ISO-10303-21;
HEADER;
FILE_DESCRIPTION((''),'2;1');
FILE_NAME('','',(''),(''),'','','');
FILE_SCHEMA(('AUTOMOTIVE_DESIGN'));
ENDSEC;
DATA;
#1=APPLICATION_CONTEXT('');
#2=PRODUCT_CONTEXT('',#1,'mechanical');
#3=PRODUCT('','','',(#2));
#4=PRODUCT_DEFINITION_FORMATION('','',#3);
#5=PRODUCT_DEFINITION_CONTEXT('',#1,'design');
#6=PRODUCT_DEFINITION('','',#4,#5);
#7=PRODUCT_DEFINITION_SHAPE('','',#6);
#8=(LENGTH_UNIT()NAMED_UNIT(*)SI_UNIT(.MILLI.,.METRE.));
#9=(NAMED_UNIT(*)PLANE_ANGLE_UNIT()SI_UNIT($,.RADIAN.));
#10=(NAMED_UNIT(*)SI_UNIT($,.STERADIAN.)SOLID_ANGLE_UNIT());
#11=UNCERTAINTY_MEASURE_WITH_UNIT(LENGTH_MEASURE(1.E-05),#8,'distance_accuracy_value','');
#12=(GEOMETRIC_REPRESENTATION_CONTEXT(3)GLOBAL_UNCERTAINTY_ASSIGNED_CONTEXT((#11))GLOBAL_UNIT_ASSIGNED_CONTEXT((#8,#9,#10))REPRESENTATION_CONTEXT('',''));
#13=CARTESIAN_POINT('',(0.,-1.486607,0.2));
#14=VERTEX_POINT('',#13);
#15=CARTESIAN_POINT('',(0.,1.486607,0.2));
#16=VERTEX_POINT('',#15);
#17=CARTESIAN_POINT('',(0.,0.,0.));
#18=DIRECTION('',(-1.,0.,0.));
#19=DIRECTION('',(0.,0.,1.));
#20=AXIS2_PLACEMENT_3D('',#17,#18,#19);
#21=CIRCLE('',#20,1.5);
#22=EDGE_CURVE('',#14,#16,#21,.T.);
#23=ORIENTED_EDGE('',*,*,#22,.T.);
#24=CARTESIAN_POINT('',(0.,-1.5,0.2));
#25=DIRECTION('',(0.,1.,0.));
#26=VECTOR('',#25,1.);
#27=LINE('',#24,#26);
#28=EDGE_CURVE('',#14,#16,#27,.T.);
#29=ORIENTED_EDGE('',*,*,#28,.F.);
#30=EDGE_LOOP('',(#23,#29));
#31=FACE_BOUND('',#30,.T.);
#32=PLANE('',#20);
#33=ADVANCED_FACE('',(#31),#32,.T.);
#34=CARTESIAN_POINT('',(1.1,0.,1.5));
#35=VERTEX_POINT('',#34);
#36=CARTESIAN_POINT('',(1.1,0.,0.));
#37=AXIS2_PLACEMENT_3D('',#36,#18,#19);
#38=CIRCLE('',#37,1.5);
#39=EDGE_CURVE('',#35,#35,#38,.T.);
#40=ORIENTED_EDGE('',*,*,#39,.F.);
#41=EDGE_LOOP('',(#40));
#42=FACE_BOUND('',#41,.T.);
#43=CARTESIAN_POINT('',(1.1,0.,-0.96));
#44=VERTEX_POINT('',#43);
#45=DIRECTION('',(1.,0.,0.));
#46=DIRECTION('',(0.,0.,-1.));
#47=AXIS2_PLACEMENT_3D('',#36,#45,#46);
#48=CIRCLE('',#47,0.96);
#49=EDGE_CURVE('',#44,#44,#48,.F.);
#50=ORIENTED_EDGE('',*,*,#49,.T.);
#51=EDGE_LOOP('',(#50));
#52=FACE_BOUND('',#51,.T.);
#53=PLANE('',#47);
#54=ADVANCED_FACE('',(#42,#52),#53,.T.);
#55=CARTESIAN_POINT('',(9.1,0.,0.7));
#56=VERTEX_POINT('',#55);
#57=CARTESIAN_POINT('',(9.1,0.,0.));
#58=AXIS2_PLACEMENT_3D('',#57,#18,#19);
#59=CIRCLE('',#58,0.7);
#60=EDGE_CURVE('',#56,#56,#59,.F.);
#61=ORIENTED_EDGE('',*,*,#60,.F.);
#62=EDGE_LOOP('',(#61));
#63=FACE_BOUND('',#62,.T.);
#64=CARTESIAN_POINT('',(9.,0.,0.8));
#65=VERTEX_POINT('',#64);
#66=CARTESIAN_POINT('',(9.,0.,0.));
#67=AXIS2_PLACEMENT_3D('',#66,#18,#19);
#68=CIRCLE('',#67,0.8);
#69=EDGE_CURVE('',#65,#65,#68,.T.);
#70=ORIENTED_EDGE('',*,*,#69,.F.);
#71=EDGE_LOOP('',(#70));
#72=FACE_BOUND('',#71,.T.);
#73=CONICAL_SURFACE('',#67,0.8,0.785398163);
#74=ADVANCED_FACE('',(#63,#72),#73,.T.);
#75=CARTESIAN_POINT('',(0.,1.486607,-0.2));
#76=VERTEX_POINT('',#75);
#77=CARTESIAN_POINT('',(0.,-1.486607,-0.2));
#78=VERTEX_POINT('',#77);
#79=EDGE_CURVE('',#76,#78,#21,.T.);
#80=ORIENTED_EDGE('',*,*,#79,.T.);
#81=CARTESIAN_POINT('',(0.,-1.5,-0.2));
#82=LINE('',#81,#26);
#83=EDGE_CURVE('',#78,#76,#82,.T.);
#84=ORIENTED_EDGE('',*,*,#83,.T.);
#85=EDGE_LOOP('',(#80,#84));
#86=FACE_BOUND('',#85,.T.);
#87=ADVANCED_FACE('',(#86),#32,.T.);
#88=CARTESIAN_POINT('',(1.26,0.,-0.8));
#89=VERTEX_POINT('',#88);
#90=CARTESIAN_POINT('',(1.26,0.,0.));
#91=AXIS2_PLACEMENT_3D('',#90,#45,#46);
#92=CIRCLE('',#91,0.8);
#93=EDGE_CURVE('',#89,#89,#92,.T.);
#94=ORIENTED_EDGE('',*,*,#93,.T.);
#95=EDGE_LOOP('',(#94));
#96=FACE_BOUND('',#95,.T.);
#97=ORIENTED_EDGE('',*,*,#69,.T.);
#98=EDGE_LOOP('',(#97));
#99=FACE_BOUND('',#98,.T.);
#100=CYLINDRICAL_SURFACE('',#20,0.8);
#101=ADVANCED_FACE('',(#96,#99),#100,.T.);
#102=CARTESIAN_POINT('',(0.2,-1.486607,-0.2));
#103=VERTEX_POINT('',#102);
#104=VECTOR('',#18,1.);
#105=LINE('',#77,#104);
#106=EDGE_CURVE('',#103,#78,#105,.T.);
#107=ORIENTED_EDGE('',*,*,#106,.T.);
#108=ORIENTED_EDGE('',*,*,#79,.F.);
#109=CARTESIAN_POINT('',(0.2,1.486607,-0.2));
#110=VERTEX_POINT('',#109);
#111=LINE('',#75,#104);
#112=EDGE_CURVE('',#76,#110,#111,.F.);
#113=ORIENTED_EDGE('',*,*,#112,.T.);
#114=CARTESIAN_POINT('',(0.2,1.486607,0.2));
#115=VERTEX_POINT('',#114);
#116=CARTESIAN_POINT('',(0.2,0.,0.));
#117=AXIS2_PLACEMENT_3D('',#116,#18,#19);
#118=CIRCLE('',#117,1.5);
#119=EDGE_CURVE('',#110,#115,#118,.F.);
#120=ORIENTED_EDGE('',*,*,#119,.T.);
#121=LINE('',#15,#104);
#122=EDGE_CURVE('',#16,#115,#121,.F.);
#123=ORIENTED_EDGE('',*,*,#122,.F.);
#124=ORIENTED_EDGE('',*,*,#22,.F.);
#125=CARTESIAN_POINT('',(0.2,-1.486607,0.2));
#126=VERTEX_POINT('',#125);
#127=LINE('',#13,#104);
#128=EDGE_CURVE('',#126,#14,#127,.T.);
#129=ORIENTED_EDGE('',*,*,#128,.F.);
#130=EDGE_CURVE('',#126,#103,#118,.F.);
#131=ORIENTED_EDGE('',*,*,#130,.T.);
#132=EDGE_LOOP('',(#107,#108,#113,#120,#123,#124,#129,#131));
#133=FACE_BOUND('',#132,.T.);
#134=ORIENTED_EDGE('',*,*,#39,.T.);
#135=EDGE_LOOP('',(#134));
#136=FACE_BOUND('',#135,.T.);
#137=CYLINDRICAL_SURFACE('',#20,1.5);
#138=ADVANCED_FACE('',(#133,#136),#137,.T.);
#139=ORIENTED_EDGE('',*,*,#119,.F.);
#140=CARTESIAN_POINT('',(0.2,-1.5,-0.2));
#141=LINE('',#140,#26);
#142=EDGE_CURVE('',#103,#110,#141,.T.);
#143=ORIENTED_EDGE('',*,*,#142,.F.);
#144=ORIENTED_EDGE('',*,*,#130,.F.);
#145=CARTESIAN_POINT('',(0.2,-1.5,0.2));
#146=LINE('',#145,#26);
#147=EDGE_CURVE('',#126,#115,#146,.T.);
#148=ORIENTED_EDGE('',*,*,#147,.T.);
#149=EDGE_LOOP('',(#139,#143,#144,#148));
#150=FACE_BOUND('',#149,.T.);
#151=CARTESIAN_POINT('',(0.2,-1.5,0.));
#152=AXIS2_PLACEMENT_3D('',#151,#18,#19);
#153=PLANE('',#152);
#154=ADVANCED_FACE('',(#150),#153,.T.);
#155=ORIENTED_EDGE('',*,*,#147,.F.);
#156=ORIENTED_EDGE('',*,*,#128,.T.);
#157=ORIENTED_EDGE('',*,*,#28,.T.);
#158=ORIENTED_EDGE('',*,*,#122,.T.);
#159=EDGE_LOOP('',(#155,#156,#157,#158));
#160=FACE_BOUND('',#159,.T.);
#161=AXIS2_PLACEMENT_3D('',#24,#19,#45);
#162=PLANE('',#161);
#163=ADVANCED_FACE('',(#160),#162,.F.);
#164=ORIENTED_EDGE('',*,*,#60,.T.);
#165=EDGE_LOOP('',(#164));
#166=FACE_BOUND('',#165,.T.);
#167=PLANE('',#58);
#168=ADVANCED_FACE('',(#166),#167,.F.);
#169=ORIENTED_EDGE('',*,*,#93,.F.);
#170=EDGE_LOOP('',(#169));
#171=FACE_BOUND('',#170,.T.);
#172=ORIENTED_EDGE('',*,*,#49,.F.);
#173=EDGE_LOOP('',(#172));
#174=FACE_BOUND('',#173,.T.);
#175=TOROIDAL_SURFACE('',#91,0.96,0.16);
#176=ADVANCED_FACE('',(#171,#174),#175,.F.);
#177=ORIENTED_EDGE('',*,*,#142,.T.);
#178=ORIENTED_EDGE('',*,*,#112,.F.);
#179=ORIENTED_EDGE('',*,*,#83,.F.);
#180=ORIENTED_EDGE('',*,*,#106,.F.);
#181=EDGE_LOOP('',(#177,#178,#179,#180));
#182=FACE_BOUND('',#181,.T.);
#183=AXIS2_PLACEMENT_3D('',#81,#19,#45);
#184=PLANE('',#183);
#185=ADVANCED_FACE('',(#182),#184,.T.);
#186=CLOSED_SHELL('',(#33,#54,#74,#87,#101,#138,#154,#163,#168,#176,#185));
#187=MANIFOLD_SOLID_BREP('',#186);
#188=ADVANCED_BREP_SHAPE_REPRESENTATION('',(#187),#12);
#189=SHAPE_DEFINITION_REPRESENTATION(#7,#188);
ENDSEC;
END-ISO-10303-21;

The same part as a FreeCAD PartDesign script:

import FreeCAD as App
import Part
import Sketcher
from FreeCAD import Vector


def edges_at(feature, points):
    """Names of the edges that pass closest to the given points."""
    edges = feature.Shape.Edges
    near = lambda p: min(range(len(edges)), key=lambda i: edges[i].distToShape(Part.Vertex(*p))[0])
    return sorted({f"Edge{near(p) + 1}" for p in points})


def add_polygon(sketch, points):
    """Adds a closed chain of lines whose ends are joined by coincident constraints."""
    first, n = sketch.GeometryCount, len(points)
    for a, b in zip(points, points[1:] + points[:1]):
        sketch.addGeometry(Part.LineSegment(App.Vector(*a, 0), App.Vector(*b, 0)), False)
    for i in range(n):
        sketch.addConstraint(Sketcher.Constraint("Coincident", first + i, 2, first + (i + 1) % n, 1))

doc = App.newDocument("Part")
body = doc.addObject("PartDesign::Body", "Body")

sketch1 = body.newObject("Sketcher::SketchObject", "Sketch")
sketch1.AttachmentSupport = (doc.getObject("XY_Plane"), [""])
sketch1.MapMode = "FlatFace"
add_polygon(sketch1, [(0, 1.5), (0, 0), (9.1, 0), (9.1, 0.8), (1.1, 0.8), (1.1, 1.5)])
sketch1.addConstraint([
    Sketcher.Constraint("Vertical", 0),
    Sketcher.Constraint("Horizontal", 1),
    Sketcher.Constraint("Vertical", 2),
    Sketcher.Constraint("Horizontal", 3),
    Sketcher.Constraint("Vertical", 4),
    Sketcher.Constraint("Horizontal", 5),
    Sketcher.Constraint("Coincident", 0, 2, -1, 1),
    Sketcher.Constraint("DistanceX", 3, 2, 3, 1, 8.0),
    Sketcher.Constraint("DistanceX", 1, 1, 1, 2, 9.1),
    Sketcher.Constraint("DistanceY", 0, 2, 0, 1, 1.5),
    Sketcher.Constraint("DistanceY", 2, 1, 2, 2, 0.8),
])
revolution = body.newObject("PartDesign::Revolution", "Revolution")
revolution.Profile = sketch1
revolution.ReferenceAxis = (sketch1, ["H_Axis"])
revolution.Angle = 360
doc.recompute()

chamfer = body.newObject("PartDesign::Chamfer", "Chamfer")
chamfer.Base = (revolution, edges_at(revolution, [(9.1, 0, -0.8)]))
chamfer.Size = 0.1
doc.recompute()

fillet = body.newObject("PartDesign::Fillet", "Fillet")
fillet.Base = (chamfer, edges_at(chamfer, [(1.1, 0, -0.8)]))
fillet.Radius = 0.16

sketch2 = body.newObject("Sketcher::SketchObject", "Sketch001")
sketch2.AttachmentSupport = (doc.getObject("XZ_Plane"), [""])
sketch2.MapMode = "FlatFace"
add_polygon(sketch2, [(0, 0.2), (0.2, 0.2), (0.2, -0.2), (0, -0.2)])
sketch2.addConstraint([
    Sketcher.Constraint("Horizontal", 0),
    Sketcher.Constraint("Vertical", 1),
    Sketcher.Constraint("Horizontal", 2),
    Sketcher.Constraint("Vertical", 3),
    Sketcher.Constraint("Symmetric", 2, 2, 3, 2, -1, 1),
    Sketcher.Constraint("DistanceX", 0, 1, 0, 2, 0.2),
    Sketcher.Constraint("DistanceY", 1, 2, 1, 1, 0.4),
])
pocket1 = body.newObject("PartDesign::Pocket", "Pocket")
pocket1.Profile = sketch2
pocket1.Type = "ThroughAll"
pocket1.Midplane = True

doc.recompute()
